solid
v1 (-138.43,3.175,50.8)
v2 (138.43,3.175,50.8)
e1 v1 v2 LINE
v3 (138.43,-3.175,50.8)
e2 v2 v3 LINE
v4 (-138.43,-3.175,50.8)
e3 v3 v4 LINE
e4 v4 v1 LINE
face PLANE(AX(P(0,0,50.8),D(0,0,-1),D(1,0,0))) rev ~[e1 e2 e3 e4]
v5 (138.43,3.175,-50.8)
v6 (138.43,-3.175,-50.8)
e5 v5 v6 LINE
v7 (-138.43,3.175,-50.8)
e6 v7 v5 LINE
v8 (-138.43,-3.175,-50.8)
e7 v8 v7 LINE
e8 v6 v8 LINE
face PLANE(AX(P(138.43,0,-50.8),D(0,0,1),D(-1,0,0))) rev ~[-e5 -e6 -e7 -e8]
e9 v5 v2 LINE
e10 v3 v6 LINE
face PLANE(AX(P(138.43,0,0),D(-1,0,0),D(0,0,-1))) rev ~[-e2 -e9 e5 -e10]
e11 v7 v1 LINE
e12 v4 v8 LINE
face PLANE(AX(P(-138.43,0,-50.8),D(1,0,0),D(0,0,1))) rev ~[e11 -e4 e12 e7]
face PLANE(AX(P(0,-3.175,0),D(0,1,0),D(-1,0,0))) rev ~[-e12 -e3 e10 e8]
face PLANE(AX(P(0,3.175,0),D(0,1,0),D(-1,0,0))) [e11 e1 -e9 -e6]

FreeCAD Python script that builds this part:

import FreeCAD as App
import Part
import Sketcher
from FreeCAD import Vector
Q = App.Units.Quantity


def add_polygon(sketch, points):
    """Adds a closed chain of lines whose ends are joined by coincident constraints."""
    first, n = sketch.GeometryCount, len(points)
    for a, b in zip(points, points[1:] + points[:1]):
        sketch.addGeometry(Part.LineSegment(App.Vector(*a, 0), App.Vector(*b, 0)), False)
    for i in range(n):
        sketch.addConstraint(Sketcher.Constraint("Coincident", first + i, 2, first + (i + 1) % n, 1))

doc = App.newDocument("Part")
body = doc.addObject("PartDesign::Body", "Body")

# Sketch on XZ plane
sketch1 = doc.addObject("Sketcher::SketchObject", "Sketch")
body.addObject(sketch1)
sketch1.AttachmentSupport = (doc.XZ_Plane, [""])
sketch1.MapMode = "FlatFace"
add_polygon(sketch1, [(138, -51), (-138, -51), (-138, 51), (138, 51)])  # lines 0-3
sketch1.addConstraint([
    Sketcher.Constraint("Horizontal", 0),
    Sketcher.Constraint("Vertical", 1),
    Sketcher.Constraint("Horizontal", 2),
    Sketcher.Constraint("Vertical", 3),
    Sketcher.Constraint("Symmetric", 0, 2, 2, 2, -1, 1),
    Sketcher.Constraint("DistanceY", 1, 1, 1, 2, Q("4 in")),
    Sketcher.Constraint("DistanceX", 0, 2, 0, 1, Q("10.9 in")),
])
pad1 = doc.addObject("PartDesign::Pad", "Pad")
body.addObject(pad1)
pad1.Profile = sketch1
pad1.Length = Q("0.25 in")
pad1.Midplane = True

doc.recompute()
